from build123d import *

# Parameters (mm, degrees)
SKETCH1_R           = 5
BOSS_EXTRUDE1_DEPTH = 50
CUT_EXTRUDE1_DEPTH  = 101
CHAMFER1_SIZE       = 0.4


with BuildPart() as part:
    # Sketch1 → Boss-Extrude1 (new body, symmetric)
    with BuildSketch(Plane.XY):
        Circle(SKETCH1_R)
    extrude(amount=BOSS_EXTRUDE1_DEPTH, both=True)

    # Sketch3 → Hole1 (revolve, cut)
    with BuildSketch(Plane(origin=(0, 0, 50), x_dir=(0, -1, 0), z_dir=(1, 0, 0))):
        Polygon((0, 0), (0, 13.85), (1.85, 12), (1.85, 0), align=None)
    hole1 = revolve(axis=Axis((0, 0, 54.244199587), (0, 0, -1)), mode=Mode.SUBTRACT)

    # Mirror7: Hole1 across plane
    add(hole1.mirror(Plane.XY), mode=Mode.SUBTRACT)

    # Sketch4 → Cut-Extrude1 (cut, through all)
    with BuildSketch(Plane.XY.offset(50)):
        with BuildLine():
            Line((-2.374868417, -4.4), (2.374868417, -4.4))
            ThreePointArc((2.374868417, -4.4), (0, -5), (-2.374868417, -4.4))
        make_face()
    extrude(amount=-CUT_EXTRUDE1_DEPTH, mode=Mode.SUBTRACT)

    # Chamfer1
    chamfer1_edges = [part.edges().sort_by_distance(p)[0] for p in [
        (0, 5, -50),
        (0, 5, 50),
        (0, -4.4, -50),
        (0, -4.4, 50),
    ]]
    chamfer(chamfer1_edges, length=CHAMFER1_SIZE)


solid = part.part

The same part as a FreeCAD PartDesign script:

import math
import FreeCAD as App
import Part
import Sketcher
Q = App.Units.Quantity


def edges_at(feature, points):
    """Names of the edges that pass closest to the given points."""
    edges = feature.Shape.Edges
    near = lambda p: min(range(len(edges)), key=lambda i: edges[i].distToShape(Part.Vertex(*p))[0])
    return sorted({f"Edge{near(p) + 1}" for p in points})


def add_polygon(sketch, points):
    """Adds a closed chain of lines whose ends are joined by coincident constraints."""
    first, n = sketch.GeometryCount, len(points)
    for a, b in zip(points, points[1:] + points[:1]):
        sketch.addGeometry(Part.LineSegment(App.Vector(*a, 0), App.Vector(*b, 0)), False)
    for i in range(n):
        sketch.addConstraint(Sketcher.Constraint("Coincident", first + i, 2, first + (i + 1) % n, 1))

doc = App.newDocument("Part")
body = doc.addObject("PartDesign::Body", "Body")

# Sketch on XY plane
sketch1 = body.newObject("Sketcher::SketchObject", "Sketch")
sketch1.AttachmentSupport = (doc.getObject("XY_Plane"), [""])
sketch1.MapMode = "FlatFace"
sketch1.addGeometry(Part.Circle(App.Vector(0, 0, 0), App.Vector(0, 0, 1), 5), False)
sketch1.addConstraint(Sketcher.Constraint("Coincident", 0, 3, -1, 1))
sketch1.addConstraint(Sketcher.Constraint("Diameter", 0, Q("10 mm")))
pad1 = body.newObject("PartDesign::Pad", "Pad")
pad1.Profile = sketch1
pad1.Length = 100
pad1.Midplane = True

# Sketch on YZ plane
sketch2 = body.newObject("Sketcher::SketchObject", "Sketch001")
sketch2.AttachmentSupport = (doc.getObject("YZ_Plane"), [""])
sketch2.MapMode = "FlatFace"
add_polygon(sketch2, [(0, 36.1), (0, 50), (-1.9, 50), (-1.9, 38)])  # lines 0-3
sketch2.addConstraint(Sketcher.Constraint("Vertical", 0))
sketch2.addConstraint(Sketcher.Constraint("Horizontal", 1))
sketch2.addConstraint(Sketcher.Constraint("Vertical", 2))
sketch2.addConstraint(Sketcher.Constraint("PointOnObject", 0, 2, -2))
sketch2.addConstraint(Sketcher.Constraint("DistanceY", 2, 2, 2, 1, Q("12 mm")))
sketch2.addConstraint(Sketcher.Constraint("Angle", 3, Q("-45 deg")))
sketch2.addConstraint(Sketcher.Constraint("DistanceY", -1, 1, 0, 2, Q("50 mm")))
sketch2.addConstraint(Sketcher.Constraint("DistanceX", 1, 2, 1, 1, Q("1.85 mm")))
groove = body.newObject("PartDesign::Groove", "Groove")
groove.Profile = sketch2
groove.ReferenceAxis = (sketch2, ["V_Axis"])
groove.Angle = 360
doc.recompute()

mirrored = body.newObject("PartDesign::Mirrored", "Mirrored")
mirrored.Originals = [groove]
mirrored.MirrorPlane = (doc.getObject("XY_Plane"), [""])
body.Tip = mirrored

# Sketch on XY plane
sketch3 = body.newObject("Sketcher::SketchObject", "Sketch002")
sketch3.AttachmentSupport = (doc.getObject("XY_Plane"), [""])
sketch3.MapMode = "FlatFace"
sketch3.AttachmentOffset = App.Placement(App.Vector(0, 0, 50), App.Rotation())
sketch3.addGeometry(Part.LineSegment(App.Vector(2.4, -4.4, 0), App.Vector(-2.4, -4.4, 0)), False)
sketch3.addGeometry(Part.ArcOfCircle(Part.Circle(App.Vector(0, 0, 0), App.Vector(0, 0, 1), 5), math.radians(-118), math.radians(-62)), False)
sketch3.addConstraint(Sketcher.Constraint("Coincident", 0, 1, 1, 2))
sketch3.addConstraint(Sketcher.Constraint("Coincident", 1, 1, 0, 2))
sketch3.addConstraint(Sketcher.Constraint("Horizontal", 0))
sketch3.addConstraint(Sketcher.Constraint("Coincident", 1, 3, -1, 1))
sketch3.addConstraint(Sketcher.Constraint("Radius", 1, Q("5 mm")))
sketch3.addConstraint(Sketcher.Constraint("DistanceY", 0, 1, -1, 1, Q("4.4 mm")))
pocket1 = body.newObject("PartDesign::Pocket", "Pocket")
pocket1.Profile = sketch3
pocket1.Type = "ThroughAll"
doc.recompute()

chamfer = body.newObject("PartDesign::Chamfer", "Chamfer")
chamfer.Base = (pocket1, edges_at(pocket1, [
    (0, 5, -50),
    (0, 5, 50),
    (0, -4.4, -50),
    (0, -4.4, 50),
]))
chamfer.Size = 0.4

doc.recompute()
